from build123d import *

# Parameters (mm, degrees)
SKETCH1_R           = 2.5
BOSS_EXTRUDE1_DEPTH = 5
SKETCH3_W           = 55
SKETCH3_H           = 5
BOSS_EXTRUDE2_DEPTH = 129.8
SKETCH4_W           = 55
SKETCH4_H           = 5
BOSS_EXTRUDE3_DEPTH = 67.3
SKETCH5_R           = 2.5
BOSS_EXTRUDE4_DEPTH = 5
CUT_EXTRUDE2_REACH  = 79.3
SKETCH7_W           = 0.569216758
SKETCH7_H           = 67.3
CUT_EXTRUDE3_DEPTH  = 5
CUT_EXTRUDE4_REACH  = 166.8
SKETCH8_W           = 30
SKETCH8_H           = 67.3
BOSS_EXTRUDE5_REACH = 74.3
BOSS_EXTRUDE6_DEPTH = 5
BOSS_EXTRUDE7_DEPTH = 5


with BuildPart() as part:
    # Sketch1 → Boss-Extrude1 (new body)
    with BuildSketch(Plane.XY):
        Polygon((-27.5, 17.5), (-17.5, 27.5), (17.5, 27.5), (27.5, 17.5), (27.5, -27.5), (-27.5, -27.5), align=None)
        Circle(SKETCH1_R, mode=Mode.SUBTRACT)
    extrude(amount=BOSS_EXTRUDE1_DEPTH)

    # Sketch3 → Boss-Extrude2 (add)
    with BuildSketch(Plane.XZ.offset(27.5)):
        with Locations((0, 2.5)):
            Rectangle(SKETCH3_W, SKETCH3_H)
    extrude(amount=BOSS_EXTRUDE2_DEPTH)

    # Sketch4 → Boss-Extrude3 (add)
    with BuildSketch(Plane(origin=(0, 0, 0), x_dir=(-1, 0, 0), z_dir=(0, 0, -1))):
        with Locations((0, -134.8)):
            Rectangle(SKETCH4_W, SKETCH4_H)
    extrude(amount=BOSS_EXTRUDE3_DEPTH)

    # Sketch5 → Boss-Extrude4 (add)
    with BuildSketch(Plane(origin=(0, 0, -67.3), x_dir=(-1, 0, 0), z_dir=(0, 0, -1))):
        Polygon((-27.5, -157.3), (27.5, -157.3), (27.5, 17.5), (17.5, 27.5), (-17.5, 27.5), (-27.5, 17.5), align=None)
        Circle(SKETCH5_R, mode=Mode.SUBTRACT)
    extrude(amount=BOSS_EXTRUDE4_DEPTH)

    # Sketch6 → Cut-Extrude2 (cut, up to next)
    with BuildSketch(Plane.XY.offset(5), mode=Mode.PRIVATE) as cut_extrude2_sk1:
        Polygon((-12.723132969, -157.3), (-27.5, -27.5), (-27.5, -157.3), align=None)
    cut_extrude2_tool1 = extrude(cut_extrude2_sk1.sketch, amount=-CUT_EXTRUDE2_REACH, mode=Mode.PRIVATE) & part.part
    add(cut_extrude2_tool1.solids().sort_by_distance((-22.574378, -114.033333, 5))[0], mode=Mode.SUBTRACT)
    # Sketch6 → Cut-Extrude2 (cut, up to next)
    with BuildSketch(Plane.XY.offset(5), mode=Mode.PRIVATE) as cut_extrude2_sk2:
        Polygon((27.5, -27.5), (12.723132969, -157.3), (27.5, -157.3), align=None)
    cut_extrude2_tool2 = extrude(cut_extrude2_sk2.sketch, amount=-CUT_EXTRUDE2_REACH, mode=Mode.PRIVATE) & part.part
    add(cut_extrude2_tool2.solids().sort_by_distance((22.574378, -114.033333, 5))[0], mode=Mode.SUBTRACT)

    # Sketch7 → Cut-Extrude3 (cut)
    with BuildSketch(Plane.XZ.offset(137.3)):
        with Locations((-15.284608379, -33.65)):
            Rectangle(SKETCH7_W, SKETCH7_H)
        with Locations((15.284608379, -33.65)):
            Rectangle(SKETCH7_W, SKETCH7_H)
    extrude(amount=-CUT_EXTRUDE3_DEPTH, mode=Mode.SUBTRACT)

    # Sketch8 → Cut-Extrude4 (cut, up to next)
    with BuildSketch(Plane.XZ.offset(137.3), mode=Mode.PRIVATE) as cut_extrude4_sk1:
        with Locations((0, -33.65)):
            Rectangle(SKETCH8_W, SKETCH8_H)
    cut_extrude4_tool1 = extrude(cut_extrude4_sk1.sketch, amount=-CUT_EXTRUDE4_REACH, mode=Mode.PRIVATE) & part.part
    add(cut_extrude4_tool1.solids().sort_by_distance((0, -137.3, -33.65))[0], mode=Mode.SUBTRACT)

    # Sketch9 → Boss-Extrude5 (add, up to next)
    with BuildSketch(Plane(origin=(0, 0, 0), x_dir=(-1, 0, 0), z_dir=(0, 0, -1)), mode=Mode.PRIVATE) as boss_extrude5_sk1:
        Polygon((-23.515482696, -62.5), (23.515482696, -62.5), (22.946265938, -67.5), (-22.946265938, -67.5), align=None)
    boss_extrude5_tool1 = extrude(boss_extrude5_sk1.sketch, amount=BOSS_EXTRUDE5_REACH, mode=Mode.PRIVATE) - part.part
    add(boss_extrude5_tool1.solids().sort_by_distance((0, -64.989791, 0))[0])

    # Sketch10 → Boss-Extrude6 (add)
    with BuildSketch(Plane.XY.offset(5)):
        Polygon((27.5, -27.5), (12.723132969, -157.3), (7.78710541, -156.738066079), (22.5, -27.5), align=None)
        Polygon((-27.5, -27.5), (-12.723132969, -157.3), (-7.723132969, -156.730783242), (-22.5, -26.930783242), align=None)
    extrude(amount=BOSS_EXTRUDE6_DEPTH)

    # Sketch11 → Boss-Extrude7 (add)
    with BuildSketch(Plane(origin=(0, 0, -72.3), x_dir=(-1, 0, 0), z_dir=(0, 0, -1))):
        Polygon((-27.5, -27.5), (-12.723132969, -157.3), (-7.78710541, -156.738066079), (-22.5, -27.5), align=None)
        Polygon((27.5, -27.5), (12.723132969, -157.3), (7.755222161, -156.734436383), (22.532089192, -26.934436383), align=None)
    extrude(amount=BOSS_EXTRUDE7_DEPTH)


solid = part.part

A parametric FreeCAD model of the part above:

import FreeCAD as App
import Part
import Sketcher


def add_polygon(sketch, points):
    """Adds a closed chain of lines whose ends are joined by coincident constraints."""
    first, n = sketch.GeometryCount, len(points)
    for a, b in zip(points, points[1:] + points[:1]):
        sketch.addGeometry(Part.LineSegment(App.Vector(*a, 0), App.Vector(*b, 0)), False)
    for i in range(n):
        sketch.addConstraint(Sketcher.Constraint("Coincident", first + i, 2, first + (i + 1) % n, 1))

doc = App.newDocument("Part")
params = doc.addObject("Spreadsheet::Sheet", "Params")
for row, (alias, value) in enumerate([
    ("sketch1_diameter", "5 mm"),
    ("sketch1_width", "55 mm"),
    ("sketch1_width2", "35 mm"),
    ("sketch1_height", "45 mm"),
    ("pad1_length", "5 mm"),
    ("sketch2_width", "55 mm"),
    ("sketch2_height", "5 mm"),
    ("pad2_length", "129.8 mm"),
    ("sketch3_width", "55 mm"),
    ("sketch3_height", "5 mm"),
    ("pad3_length", "67.3 mm"),
    ("sketch4_diameter", "5 mm"),
    ("sketch4_width", "55 mm"),
    ("sketch4_width2", "35 mm"),
    ("sketch4_height", "174.8 mm"),
    ("pad4_length", "5 mm"),
    ("sketch5_height", "129.8 mm"),
    ("pocket1_length", "77.3 mm"),
    ("sketch6_height", "129.8 mm"),
    ("pocket2_length", "77.3 mm"),
    ("sketch7_height", "67.3 mm"),
    ("pocket3_length", "5 mm"),
    ("sketch8_width", "30 mm"),
    ("sketch8_height", "67.3 mm"),
    ("sketch10_width", "5 mm"),
    ("pad6_length", "5 mm"),
    ("sketch11_width", "5 mm"),
    ("sketch11_length", "5 mm"),
    ("pad7_length", "5 mm"),
], start=1):
    params.set(f"A{row}", alias)
    params.set(f"B{row}", "=" + value)
    params.setAlias(f"B{row}", alias)

body = doc.addObject("PartDesign::Body", "Body")
body.AllowCompound = True

# Sketch on XY plane
sketch1 = body.newObject("Sketcher::SketchObject", "Sketch")
sketch1.AttachmentSupport = (doc.getObject("XY_Plane"), [""])
sketch1.MapMode = "FlatFace"
add_polygon(sketch1, [(-17.5, 27.5), (-27.5, 17.5), (-27.5, -27.5), (27.5, -27.5), (27.5, 17.5), (17.5, 27.5)])  # lines 0-5
sketch1.addGeometry(Part.Circle(App.Vector(0, 0, 0), App.Vector(0, 0, 1), 2.5), False)  # 6
sketch1.addConstraint(Sketcher.Constraint("Vertical", 1))
sketch1.addConstraint(Sketcher.Constraint("Horizontal", 2))
sketch1.addConstraint(Sketcher.Constraint("Vertical", 3))
sketch1.addConstraint(Sketcher.Constraint("Horizontal", 5))
sketch1.addConstraint(Sketcher.Constraint("Coincident", 6, 3, -1, 1))
sketch1.addConstraint(Sketcher.Constraint("Symmetric", 0, 2, 3, 2, -2))
sketch1.addConstraint(Sketcher.Constraint("Perpendicular", 0, 4))
sketch1.addConstraint(Sketcher.Constraint("Equal", 0, 4))
sketch1.addConstraint(Sketcher.Constraint("Diameter", 6, 5.0))
sketch1.addConstraint(Sketcher.Constraint("DistanceX", 2, 1, 2, 2, 55.0))
sketch1.addConstraint(Sketcher.Constraint("DistanceX", 5, 2, 5, 1, 35.0))
sketch1.addConstraint(Sketcher.Constraint("DistanceY", 1, 2, 1, 1, 45.0))
sketch1.addConstraint(Sketcher.Constraint("DistanceY", -1, 1, 0, 2, 17.5))
sketch1.setExpression("Constraints[14]", "Params.sketch1_diameter")
sketch1.setExpression("Constraints[15]", "Params.sketch1_width")
sketch1.setExpression("Constraints[16]", "Params.sketch1_width2")
sketch1.setExpression("Constraints[17]", "Params.sketch1_height")
pad1 = body.newObject("PartDesign::Pad", "Pad")
pad1.Profile = sketch1
pad1.setExpression("Length", "Params.pad1_length")

# Sketch on XZ plane
sketch2 = body.newObject("Sketcher::SketchObject", "Sketch001")
sketch2.AttachmentSupport = (doc.getObject("XZ_Plane"), [""])
sketch2.MapMode = "FlatFace"
sketch2.AttachmentOffset = App.Placement(App.Vector(0, 0, 27.5), App.Rotation())
add_polygon(sketch2, [(-28, 5), (-28, 0), (28, 0), (28, 5)])  # lines 0-3
sketch2.addConstraint(Sketcher.Constraint("Vertical", 0))
sketch2.addConstraint(Sketcher.Constraint("Horizontal", 1))
sketch2.addConstraint(Sketcher.Constraint("Vertical", 2))
sketch2.addConstraint(Sketcher.Constraint("Horizontal", 3))
sketch2.addConstraint(Sketcher.Constraint("Symmetric", 0, 2, 1, 2, -1, 1))
sketch2.addConstraint(Sketcher.Constraint("DistanceX", 1, 1, 1, 2, 55.0))
sketch2.addConstraint(Sketcher.Constraint("DistanceY", 0, 2, 0, 1, 5.0))
sketch2.setExpression("Constraints[9]", "Params.sketch2_width")
sketch2.setExpression("Constraints[10]", "Params.sketch2_height")
pad2 = body.newObject("PartDesign::Pad", "Pad001")
pad2.Profile = sketch2
pad2.setExpression("Length", "Params.pad2_length")

# Sketch on XY plane
sketch3 = body.newObject("Sketcher::SketchObject", "Sketch002")
sketch3.AttachmentSupport = (doc.getObject("XY_Plane"), [""])
sketch3.MapMode = "FlatFace"
add_polygon(sketch3, [(28, -132), (28, -137), (-28, -137), (-28, -132)])  # lines 0-3
sketch3.addConstraint(Sketcher.Constraint("Vertical", 0))
sketch3.addConstraint(Sketcher.Constraint("Horizontal", 1))
sketch3.addConstraint(Sketcher.Constraint("Vertical", 2))
sketch3.addConstraint(Sketcher.Constraint("Horizontal", 3))
sketch3.addConstraint(Sketcher.Constraint("DistanceX", 1, 2, 1, 1, 55.0))
sketch3.addConstraint(Sketcher.Constraint("DistanceY", 0, 2, 0, 1, 5.0))
sketch3.addConstraint(Sketcher.Constraint("DistanceX", -1, 1, 0, 2, 27.5))
sketch3.addConstraint(Sketcher.Constraint("DistanceY", 0, 2, -1, 1, 137.3))
sketch3.setExpression("Constraints[8]", "Params.sketch3_width")
sketch3.setExpression("Constraints[9]", "Params.sketch3_height")
pad3 = body.newObject("PartDesign::Pad", "Pad002")
pad3.Profile = sketch3
pad3.setExpression("Length", "Params.pad3_length")
pad3.Reversed = True

# Sketch on XY plane
sketch4 = body.newObject("Sketcher::SketchObject", "Sketch003")
sketch4.AttachmentSupport = (doc.getObject("XY_Plane"), [""])
sketch4.MapMode = "FlatFace"
sketch4.AttachmentOffset = App.Placement(App.Vector(0, 0, -67.3), App.Rotation())
add_polygon(sketch4, [(27.5, -157.3), (-27.5, -157.3), (-27.5, 17.5), (-17.5, 27.5), (17.5, 27.5), (27.5, 17.5)])  # lines 0-5
sketch4.addGeometry(Part.Circle(App.Vector(0, 0, 0), App.Vector(0, 0, 1), 2.5), False)  # 6
sketch4.addConstraint(Sketcher.Constraint("Horizontal", 0))
sketch4.addConstraint(Sketcher.Constraint("Vertical", 1))
sketch4.addConstraint(Sketcher.Constraint("Horizontal", 3))
sketch4.addConstraint(Sketcher.Constraint("Vertical", 5))
sketch4.addConstraint(Sketcher.Constraint("Coincident", 6, 3, -1, 1))
sketch4.addConstraint(Sketcher.Constraint("Symmetric", 1, 2, 4, 2, -2))
sketch4.addConstraint(Sketcher.Constraint("Perpendicular", 2, 4))
sketch4.addConstraint(Sketcher.Constraint("Equal", 2, 4))
sketch4.addConstraint(Sketcher.Constraint("Diameter", 6, 5.0))
sketch4.addConstraint(Sketcher.Constraint("DistanceX", 0, 2, 0, 1, 55.0))
sketch4.addConstraint(Sketcher.Constraint("DistanceX", 3, 1, 3, 2, 35.0))
sketch4.addConstraint(Sketcher.Constraint("DistanceY", 1, 1, 1, 2, 174.8))
sketch4.addConstraint(Sketcher.Constraint("DistanceY", 0, 2, -1, 1, 157.3))
sketch4.setExpression("Constraints[14]", "Params.sketch4_diameter")
sketch4.setExpression("Constraints[15]", "Params.sketch4_width")
sketch4.setExpression("Constraints[16]", "Params.sketch4_width2")
sketch4.setExpression("Constraints[17]", "Params.sketch4_height")
pad4 = body.newObject("PartDesign::Pad", "Pad003")
pad4.Profile = sketch4
pad4.setExpression("Length", "Params.pad4_length")
pad4.Reversed = True

# Sketch on XY plane
sketch5 = body.newObject("Sketcher::SketchObject", "Sketch004")
sketch5.AttachmentSupport = (doc.getObject("XY_Plane"), [""])
sketch5.MapMode = "FlatFace"
sketch5.AttachmentOffset = App.Placement(App.Vector(0, 0, 5), App.Rotation())
add_polygon(sketch5, [(-13, -157), (-28, -28), (-28, -157)])  # lines 0-2
sketch5.addConstraint(Sketcher.Constraint("Vertical", 1))
sketch5.addConstraint(Sketcher.Constraint("Horizontal", 2))
sketch5.addConstraint(Sketcher.Constraint("DistanceY", 1, 2, 1, 1, 129.8))
sketch5.addConstraint(Sketcher.Constraint("DistanceX", 0, 2, -1, 1, 27.5))
sketch5.addConstraint(Sketcher.Constraint("DistanceY", 0, 2, -1, 1, 27.5))
sketch5.addConstraint(Sketcher.Constraint("DistanceX", 2, 1, 2, 2, 14.776867))
sketch5.setExpression("Constraints[5]", "Params.sketch5_height")
pocket1 = body.newObject("PartDesign::Pocket", "Pocket")
pocket1.Profile = sketch5
pocket1.setExpression("Length", "Params.pocket1_length")

# Sketch on XY plane
sketch6 = body.newObject("Sketcher::SketchObject", "Sketch005")
sketch6.AttachmentSupport = (doc.getObject("XY_Plane"), [""])
sketch6.MapMode = "FlatFace"
sketch6.AttachmentOffset = App.Placement(App.Vector(0, 0, 5), App.Rotation())
add_polygon(sketch6, [(28, -28), (13, -157), (28, -157)])  # lines 0-2
sketch6.addConstraint(Sketcher.Constraint("Horizontal", 1))
sketch6.addConstraint(Sketcher.Constraint("Vertical", 2))
sketch6.addConstraint(Sketcher.Constraint("DistanceY", 2, 1, 2, 2, 129.8))
sketch6.addConstraint(Sketcher.Constraint("DistanceY", 0, 2, -1, 1, 157.3))
sketch6.addConstraint(Sketcher.Constraint("DistanceX", -1, 1, 1, 2, 27.5))
sketch6.addConstraint(Sketcher.Constraint("DistanceX", 1, 1, 1, 2, 14.776867))
sketch6.setExpression("Constraints[5]", "Params.sketch6_height")
pocket2 = body.newObject("PartDesign::Pocket", "Pocket001")
pocket2.Profile = sketch6
pocket2.setExpression("Length", "Params.pocket2_length")

# Sketch on XZ plane
sketch7 = body.newObject("Sketcher::SketchObject", "Sketch006")
sketch7.AttachmentSupport = (doc.getObject("XZ_Plane"), [""])
sketch7.MapMode = "FlatFace"
sketch7.AttachmentOffset = App.Placement(App.Vector(0, 0, 137.3), App.Rotation())
add_polygon(sketch7, [(-15.6, 0), (-15.6, -67.3), (-15, -67.3), (-15, 0)])  # lines 0-3
add_polygon(sketch7, [(15, 0), (15, -67.3), (15.6, -67.3), (15.6, 0)])  # lines 4-7
sketch7.addConstraint(Sketcher.Constraint("Vertical", 0))
sketch7.addConstraint(Sketcher.Constraint("Horizontal", 1))
sketch7.addConstraint(Sketcher.Constraint("Vertical", 2))
sketch7.addConstraint(Sketcher.Constraint("Horizontal", 3))
sketch7.addConstraint(Sketcher.Constraint("Vertical", 4))
sketch7.addConstraint(Sketcher.Constraint("Horizontal", 5))
sketch7.addConstraint(Sketcher.Constraint("Vertical", 6))
sketch7.addConstraint(Sketcher.Constraint("Horizontal", 7))
sketch7.addConstraint(Sketcher.Constraint("Symmetric", 3, 2, 6, 2, -1, 1))
sketch7.addConstraint(Sketcher.Constraint("Symmetric", 1, 2, 4, 2, -2))
sketch7.addConstraint(Sketcher.Constraint("PointOnObject", 2, 2, -1))
sketch7.addConstraint(Sketcher.Constraint("DistanceY", 0, 2, 0, 1, 67.3))
sketch7.addConstraint(Sketcher.Constraint("DistanceX", 1, 2, -1, 1, 15.0))
sketch7.addConstraint(Sketcher.Constraint("DistanceX", 1, 1, 1, 2, 0.569217))
sketch7.setExpression("Constraints[19]", "Params.sketch7_height")
pocket3 = body.newObject("PartDesign::Pocket", "Pocket002")
pocket3.Profile = sketch7
pocket3.setExpression("Length", "Params.pocket3_length")

# Sketch on XZ plane
sketch8 = body.newObject("Sketcher::SketchObject", "Sketch007")
sketch8.AttachmentSupport = (doc.getObject("XZ_Plane"), [""])
sketch8.MapMode = "FlatFace"
sketch8.AttachmentOffset = App.Placement(App.Vector(0, 0, 137.3), App.Rotation())
add_polygon(sketch8, [(-15, 0), (-15, -67), (15, -67), (15, 0)])  # lines 0-3
sketch8.addConstraint(Sketcher.Constraint("Vertical", 0))
sketch8.addConstraint(Sketcher.Constraint("Horizontal", 1))
sketch8.addConstraint(Sketcher.Constraint("Vertical", 2))
sketch8.addConstraint(Sketcher.Constraint("Horizontal", 3))
sketch8.addConstraint(Sketcher.Constraint("Symmetric", 2, 2, 3, 2, -1, 1))
sketch8.addConstraint(Sketcher.Constraint("DistanceX", 1, 1, 1, 2, 30.0))
sketch8.addConstraint(Sketcher.Constraint("DistanceY", 0, 2, 0, 1, 67.3))
sketch8.setExpression("Constraints[9]", "Params.sketch8_width")
sketch8.setExpression("Constraints[10]", "Params.sketch8_height")
pocket4 = body.newObject("PartDesign::Pocket", "Pocket003")
pocket4.Profile = sketch8
pocket4.Type = "UpToFirst"

# Sketch on XY plane
sketch9 = body.newObject("Sketcher::SketchObject", "Sketch008")
sketch9.AttachmentSupport = (doc.getObject("XY_Plane"), [""])
sketch9.MapMode = "FlatFace"
add_polygon(sketch9, [(-24, -62), (24, -62), (23, -68), (-23, -68)])  # lines 0-3
sketch9.addConstraint(Sketcher.Constraint("Horizontal", 0))
sketch9.addConstraint(Sketcher.Constraint("Horizontal", 2))
sketch9.addConstraint(Sketcher.Constraint("Equal", 1, 3))
sketch9.addConstraint(Sketcher.Constraint("DistanceY", 1, 2, 0, 2, 5.0))
sketch9.addConstraint(Sketcher.Constraint("DistanceY", 0, 2, -1, 1, 62.5))
sketch9.addConstraint(Sketcher.Constraint("DistanceX", 2, 2, 2, 1, 45.892532))
sketch9.addConstraint(Sketcher.Constraint("DistanceX", 0, 1, 0, 2, 47.030965))
sketch9.addConstraint(Sketcher.Constraint("DistanceX", -1, 1, 0, 2, 23.515483))
pad5 = body.newObject("PartDesign::Pad", "Pad004")
pad5.Profile = sketch9
pad5.Type = "UpToFirst"
pad5.Reversed = True

# Sketch on XY plane
sketch10 = body.newObject("Sketcher::SketchObject", "Sketch009")
sketch10.AttachmentSupport = (doc.getObject("XY_Plane"), [""])
sketch10.MapMode = "FlatFace"
sketch10.AttachmentOffset = App.Placement(App.Vector(0, 0, 5), App.Rotation())
add_polygon(sketch10, [(12.7, -157.3), (27.5, -27.5), (22.5, -27.5), (7.8, -156.7)])  # lines 0-3
add_polygon(sketch10, [(-27.5, -27.5), (-12.7, -157.3), (-7.7, -156.7), (-22.5, -26.9)])  # lines 4-7
sketch10.addConstraint(Sketcher.Constraint("Horizontal", 1))
sketch10.addConstraint(Sketcher.Constraint("Symmetric", 3, 2, 4, 2, -2))
sketch10.addConstraint(Sketcher.Constraint("Symmetric", 0, 2, 7, 2, -2))
sketch10.addConstraint(Sketcher.Constraint("Parallel", 0, 2))
sketch10.addConstraint(Sketcher.Constraint("Perpendicular", 2, 3))
sketch10.addConstraint(Sketcher.Constraint("Perpendicular", 4, 5))
sketch10.addConstraint(Sketcher.Constraint("Perpendicular", 5, 6))
sketch10.addConstraint(Sketcher.Constraint("Perpendicular", 6, 7))
sketch10.addConstraint(Sketcher.Constraint("DistanceX", 1, 2, 1, 1, 5.0))
sketch10.addConstraint(Sketcher.Constraint("DistanceX", 4, 2, 5, 2, 5.0))
sketch10.addConstraint(Sketcher.Constraint("DistanceX", 6, 2, 1, 2, 45.0))
sketch10.addConstraint(Sketcher.Constraint("DistanceY", 0, 2, -1, 1, 27.5))
sketch10.addConstraint(Sketcher.Constraint("DistanceY", 3, 2, -1, 1, 157.3))
sketch10.addConstraint(Sketcher.Constraint("DistanceX", 4, 2, 2, 2, 20.510238))
sketch10.setExpression("Constraints[16]", "Params.sketch10_width")
pad6 = body.newObject("PartDesign::Pad", "Pad005")
pad6.Profile = sketch10
pad6.setExpression("Length", "Params.pad6_length")

# Sketch on XY plane
sketch11 = body.newObject("Sketcher::SketchObject", "Sketch010")
sketch11.AttachmentSupport = (doc.getObject("XY_Plane"), [""])
sketch11.MapMode = "FlatFace"
sketch11.AttachmentOffset = App.Placement(App.Vector(0, 0, -72.3), App.Rotation())
add_polygon(sketch11, [(27.5, -27.5), (12.7, -157.3), (7.8, -156.7), (22.5, -27.5)])  # lines 0-3
add_polygon(sketch11, [(-12.7, -157.3), (-27.5, -27.5), (-22.5, -26.9), (-7.8, -156.7)])  # lines 4-7
sketch11.addConstraint(Sketcher.Constraint("Horizontal", 3))
sketch11.addConstraint(Sketcher.Constraint("Symmetric", 3, 2, 4, 2, -2))
sketch11.addConstraint(Sketcher.Constraint("Symmetric", 0, 2, 7, 2, -2))
sketch11.addConstraint(Sketcher.Constraint("Perpendicular", 0, 1))
sketch11.addConstraint(Sketcher.Constraint("Perpendicular", 1, 2))
sketch11.addConstraint(Sketcher.Constraint("Perpendicular", 4, 5))
sketch11.addConstraint(Sketcher.Constraint("Perpendicular", 5, 6))
sketch11.addConstraint(Sketcher.Constraint("Perpendicular", 6, 7))
sketch11.addConstraint(Sketcher.Constraint("DistanceX", 3, 1, 3, 2, 5.0))
sketch11.addConstraint(Sketcher.Constraint("Distance", 5, 5.0))
sketch11.addConstraint(Sketcher.Constraint("DistanceX", 4, 2, 2, 2, 50.0))
sketch11.addConstraint(Sketcher.Constraint("DistanceY", 0, 2, -1, 1, 157.3))
sketch11.addConstraint(Sketcher.Constraint("DistanceY", 2, 2, -1, 1, 27.5))
sketch11.addConstraint(Sketcher.Constraint("DistanceX", 7, 2, 1, 2, 20.510238))
sketch11.setExpression("Constraints[16]", "Params.sketch11_width")
sketch11.setExpression("Constraints[17]", "Params.sketch11_length")
pad7 = body.newObject("PartDesign::Pad", "Pad006")
pad7.Profile = sketch11
pad7.setExpression("Length", "Params.pad7_length")
pad7.Reversed = True

doc.recompute()
